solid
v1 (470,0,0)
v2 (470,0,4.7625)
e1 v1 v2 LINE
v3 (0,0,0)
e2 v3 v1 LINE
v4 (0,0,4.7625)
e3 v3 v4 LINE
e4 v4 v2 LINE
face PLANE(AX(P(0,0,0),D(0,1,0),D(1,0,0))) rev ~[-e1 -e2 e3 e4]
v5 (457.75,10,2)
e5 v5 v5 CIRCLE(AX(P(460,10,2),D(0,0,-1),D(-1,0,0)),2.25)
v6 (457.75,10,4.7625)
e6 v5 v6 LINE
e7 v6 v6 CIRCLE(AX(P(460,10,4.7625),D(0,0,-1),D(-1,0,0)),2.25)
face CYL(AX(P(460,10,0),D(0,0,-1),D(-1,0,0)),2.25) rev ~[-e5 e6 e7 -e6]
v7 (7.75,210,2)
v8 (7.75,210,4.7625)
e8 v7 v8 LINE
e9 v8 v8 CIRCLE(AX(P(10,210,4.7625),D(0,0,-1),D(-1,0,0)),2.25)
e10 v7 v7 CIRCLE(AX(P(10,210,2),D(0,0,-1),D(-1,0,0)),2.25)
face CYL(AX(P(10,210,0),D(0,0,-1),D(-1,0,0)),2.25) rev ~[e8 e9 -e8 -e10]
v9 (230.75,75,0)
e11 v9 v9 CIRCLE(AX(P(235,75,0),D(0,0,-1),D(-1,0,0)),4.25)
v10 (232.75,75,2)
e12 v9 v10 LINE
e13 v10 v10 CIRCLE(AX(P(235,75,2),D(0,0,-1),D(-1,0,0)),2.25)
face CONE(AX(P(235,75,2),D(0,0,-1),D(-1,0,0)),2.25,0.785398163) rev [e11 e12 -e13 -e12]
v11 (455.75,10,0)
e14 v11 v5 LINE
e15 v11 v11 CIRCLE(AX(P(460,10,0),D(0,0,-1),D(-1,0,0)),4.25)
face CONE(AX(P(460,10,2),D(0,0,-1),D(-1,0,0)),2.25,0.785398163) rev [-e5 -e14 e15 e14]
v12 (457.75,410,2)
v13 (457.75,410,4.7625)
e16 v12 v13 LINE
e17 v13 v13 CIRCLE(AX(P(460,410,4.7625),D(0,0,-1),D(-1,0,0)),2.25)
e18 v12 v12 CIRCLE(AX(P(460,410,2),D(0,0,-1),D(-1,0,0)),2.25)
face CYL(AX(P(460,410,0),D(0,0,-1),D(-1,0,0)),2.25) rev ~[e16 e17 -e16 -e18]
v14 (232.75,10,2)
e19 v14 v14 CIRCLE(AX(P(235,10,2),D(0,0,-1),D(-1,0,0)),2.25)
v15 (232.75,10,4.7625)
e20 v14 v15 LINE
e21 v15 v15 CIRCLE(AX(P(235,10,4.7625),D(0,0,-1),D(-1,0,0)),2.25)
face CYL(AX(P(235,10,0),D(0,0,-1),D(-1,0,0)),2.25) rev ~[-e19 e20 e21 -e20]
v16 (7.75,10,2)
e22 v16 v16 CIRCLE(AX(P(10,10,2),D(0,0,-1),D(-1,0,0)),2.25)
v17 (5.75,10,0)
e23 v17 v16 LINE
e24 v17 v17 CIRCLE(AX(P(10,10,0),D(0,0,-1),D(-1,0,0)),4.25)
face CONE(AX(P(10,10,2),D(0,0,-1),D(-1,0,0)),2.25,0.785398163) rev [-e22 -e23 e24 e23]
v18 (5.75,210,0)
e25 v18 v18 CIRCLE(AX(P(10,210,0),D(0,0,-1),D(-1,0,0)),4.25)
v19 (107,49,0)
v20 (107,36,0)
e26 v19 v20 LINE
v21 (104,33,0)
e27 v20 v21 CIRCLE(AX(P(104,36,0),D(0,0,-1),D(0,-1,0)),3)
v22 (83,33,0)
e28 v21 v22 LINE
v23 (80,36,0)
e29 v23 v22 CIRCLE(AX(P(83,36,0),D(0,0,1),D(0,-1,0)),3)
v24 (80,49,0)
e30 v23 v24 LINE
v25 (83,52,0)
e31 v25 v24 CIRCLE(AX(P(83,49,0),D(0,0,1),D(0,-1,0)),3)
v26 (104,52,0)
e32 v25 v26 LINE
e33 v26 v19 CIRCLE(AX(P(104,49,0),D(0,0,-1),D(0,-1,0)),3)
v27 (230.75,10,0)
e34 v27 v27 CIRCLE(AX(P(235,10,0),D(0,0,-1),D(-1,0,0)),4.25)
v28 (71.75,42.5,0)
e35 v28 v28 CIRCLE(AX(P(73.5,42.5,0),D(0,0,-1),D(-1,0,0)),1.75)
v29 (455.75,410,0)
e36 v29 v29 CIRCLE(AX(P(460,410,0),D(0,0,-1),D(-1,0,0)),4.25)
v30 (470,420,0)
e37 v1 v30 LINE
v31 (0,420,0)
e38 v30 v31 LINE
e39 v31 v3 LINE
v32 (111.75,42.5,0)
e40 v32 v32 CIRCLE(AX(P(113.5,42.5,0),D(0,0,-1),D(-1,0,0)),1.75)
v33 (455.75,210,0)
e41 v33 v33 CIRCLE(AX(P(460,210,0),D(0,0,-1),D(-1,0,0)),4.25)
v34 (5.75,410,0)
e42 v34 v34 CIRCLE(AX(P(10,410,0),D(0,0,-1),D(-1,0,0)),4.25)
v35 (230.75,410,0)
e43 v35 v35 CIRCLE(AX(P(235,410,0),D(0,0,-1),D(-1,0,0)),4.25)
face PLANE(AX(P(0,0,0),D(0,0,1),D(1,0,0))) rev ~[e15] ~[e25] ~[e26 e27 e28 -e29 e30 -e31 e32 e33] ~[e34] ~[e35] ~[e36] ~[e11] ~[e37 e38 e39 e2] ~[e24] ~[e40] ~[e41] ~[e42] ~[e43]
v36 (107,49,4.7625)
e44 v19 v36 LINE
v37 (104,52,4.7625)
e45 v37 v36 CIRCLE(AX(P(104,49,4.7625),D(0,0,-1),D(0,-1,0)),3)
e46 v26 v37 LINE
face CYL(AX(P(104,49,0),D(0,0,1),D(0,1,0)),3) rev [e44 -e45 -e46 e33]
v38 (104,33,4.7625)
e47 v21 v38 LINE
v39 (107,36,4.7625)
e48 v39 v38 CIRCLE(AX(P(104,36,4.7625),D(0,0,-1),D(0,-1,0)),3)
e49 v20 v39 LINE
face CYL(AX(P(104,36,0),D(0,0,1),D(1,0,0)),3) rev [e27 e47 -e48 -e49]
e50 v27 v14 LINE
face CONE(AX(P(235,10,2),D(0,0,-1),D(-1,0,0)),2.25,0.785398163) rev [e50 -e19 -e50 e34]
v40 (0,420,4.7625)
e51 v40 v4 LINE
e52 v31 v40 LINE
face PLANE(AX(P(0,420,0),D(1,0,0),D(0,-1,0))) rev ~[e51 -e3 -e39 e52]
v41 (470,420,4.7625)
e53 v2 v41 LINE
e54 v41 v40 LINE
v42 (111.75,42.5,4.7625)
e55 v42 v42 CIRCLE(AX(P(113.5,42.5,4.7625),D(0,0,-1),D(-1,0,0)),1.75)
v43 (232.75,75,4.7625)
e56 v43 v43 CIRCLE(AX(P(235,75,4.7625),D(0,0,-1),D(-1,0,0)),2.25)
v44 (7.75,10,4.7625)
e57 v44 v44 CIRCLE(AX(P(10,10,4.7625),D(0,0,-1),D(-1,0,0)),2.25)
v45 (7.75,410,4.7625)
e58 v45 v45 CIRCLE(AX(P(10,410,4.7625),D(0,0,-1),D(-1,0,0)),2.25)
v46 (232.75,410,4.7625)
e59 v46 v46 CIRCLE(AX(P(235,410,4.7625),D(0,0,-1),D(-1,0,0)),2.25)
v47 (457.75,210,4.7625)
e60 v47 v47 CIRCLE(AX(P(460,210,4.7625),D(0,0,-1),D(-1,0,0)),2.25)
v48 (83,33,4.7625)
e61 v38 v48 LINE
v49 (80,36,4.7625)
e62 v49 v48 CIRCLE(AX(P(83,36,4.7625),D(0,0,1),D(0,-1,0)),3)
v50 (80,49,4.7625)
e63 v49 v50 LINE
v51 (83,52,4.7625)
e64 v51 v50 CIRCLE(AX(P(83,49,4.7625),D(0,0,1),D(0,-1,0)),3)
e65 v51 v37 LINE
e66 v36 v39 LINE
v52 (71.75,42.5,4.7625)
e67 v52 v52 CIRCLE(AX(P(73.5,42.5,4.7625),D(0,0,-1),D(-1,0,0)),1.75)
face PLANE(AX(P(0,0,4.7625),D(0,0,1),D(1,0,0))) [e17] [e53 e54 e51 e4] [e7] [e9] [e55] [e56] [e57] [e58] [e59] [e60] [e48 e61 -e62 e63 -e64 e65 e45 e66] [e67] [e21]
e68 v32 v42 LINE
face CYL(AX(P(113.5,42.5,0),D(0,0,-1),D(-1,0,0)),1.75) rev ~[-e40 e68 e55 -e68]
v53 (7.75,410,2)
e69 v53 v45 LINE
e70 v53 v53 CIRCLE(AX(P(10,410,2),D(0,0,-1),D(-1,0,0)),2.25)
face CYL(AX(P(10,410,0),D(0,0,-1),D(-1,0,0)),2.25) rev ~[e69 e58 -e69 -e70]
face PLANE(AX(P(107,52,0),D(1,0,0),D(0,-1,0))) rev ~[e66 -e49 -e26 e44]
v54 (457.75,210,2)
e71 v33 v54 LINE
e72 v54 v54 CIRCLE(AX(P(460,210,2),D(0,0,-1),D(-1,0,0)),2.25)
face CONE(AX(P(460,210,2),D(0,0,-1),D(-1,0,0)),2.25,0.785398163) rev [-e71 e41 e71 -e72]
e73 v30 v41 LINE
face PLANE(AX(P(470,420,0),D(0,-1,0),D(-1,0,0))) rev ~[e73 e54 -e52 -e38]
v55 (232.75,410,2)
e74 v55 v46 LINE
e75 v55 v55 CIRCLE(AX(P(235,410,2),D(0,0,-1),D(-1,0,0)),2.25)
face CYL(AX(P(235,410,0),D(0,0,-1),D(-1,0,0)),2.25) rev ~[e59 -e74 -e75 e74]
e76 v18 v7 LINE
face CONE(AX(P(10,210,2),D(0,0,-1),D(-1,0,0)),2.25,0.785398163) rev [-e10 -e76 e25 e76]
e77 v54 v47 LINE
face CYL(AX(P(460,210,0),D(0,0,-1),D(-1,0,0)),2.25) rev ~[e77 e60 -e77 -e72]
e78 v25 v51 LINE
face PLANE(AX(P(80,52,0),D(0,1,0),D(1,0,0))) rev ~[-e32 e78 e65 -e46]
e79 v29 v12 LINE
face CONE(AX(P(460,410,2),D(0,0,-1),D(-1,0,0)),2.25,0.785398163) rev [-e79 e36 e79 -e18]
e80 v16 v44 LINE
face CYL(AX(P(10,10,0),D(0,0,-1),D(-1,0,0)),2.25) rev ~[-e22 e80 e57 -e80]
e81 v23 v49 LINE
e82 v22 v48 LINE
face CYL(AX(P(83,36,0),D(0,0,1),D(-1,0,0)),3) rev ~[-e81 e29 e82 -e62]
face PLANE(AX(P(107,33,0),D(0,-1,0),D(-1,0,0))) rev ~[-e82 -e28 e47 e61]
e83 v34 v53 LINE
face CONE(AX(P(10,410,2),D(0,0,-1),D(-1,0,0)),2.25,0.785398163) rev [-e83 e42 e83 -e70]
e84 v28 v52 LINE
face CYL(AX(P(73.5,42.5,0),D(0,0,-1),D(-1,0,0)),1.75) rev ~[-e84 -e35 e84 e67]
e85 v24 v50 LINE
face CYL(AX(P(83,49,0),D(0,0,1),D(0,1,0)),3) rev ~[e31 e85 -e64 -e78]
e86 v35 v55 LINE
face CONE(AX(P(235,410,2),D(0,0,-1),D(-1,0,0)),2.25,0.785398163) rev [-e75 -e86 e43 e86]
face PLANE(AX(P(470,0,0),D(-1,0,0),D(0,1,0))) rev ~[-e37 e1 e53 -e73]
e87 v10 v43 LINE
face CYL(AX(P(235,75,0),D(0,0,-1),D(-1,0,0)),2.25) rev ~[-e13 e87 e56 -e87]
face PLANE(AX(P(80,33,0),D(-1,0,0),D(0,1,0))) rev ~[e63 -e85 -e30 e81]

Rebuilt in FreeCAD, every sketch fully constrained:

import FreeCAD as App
import Part
import Sketcher

V = App.Vector


def edges_at(feature, points):
    """Names of the edges that pass closest to the given points."""
    edges = feature.Shape.Edges
    near = lambda p: min(range(len(edges)), key=lambda i: edges[i].distToShape(Part.Vertex(*p))[0])
    return sorted({f"Edge{near(p) + 1}" for p in points})

doc = App.newDocument("Part")
params = doc.addObject("Spreadsheet::Sheet", "Params")
for row, (alias, value) in enumerate([
    ("sketch1_width", "470 mm"),
    ("sketch1_height", "420 mm"),
    ("pad1_length", "4.7625 mm"),
    ("sketch2_width", "27 mm"),
    ("sketch2_height", "19 mm"),
    ("sketch3_diameter", "3.5 mm"),
    ("pocket2_length", "4.7625 mm"),
    ("sketch4_diameter", "4.5 mm"),
    ("pocket3_length", "4.7625 mm"),
    ("chamfer_size", "2 mm"),
    ("fillet_radius", "3 mm"),
], start=1):
    params.set(f"A{row}", alias)
    params.set(f"B{row}", "=" + value)
    params.setAlias(f"B{row}", alias)

body = doc.addObject("PartDesign::Body", "Body")

# Sketch on XY plane
sketch1 = body.newObject("Sketcher::SketchObject", "Sketch")
sketch1.AttachmentSupport = (doc.getObject("XY_Plane"), [""])
sketch1.MapMode = "FlatFace"
sketch1.addGeometry([
    Part.LineSegment(V(0, 420, 0), V(0, 0, 0)),
    Part.LineSegment(V(0, 0, 0), V(470, 0, 0)),
    Part.LineSegment(V(470, 0, 0), V(470, 420, 0)),
    Part.LineSegment(V(470, 420, 0), V(0, 420, 0)),
], False)
sketch1.addConstraint([
    Sketcher.Constraint("Coincident", 0, 2, 1, 1),
    Sketcher.Constraint("Coincident", 1, 2, 2, 1),
    Sketcher.Constraint("Coincident", 2, 2, 3, 1),
    Sketcher.Constraint("Coincident", 3, 2, 0, 1),
    Sketcher.Constraint("Vertical", 0),
    Sketcher.Constraint("Horizontal", 1),
    Sketcher.Constraint("Vertical", 2),
    Sketcher.Constraint("Horizontal", 3),
    Sketcher.Constraint("Coincident", 0, 2, -1, 1),
    Sketcher.Constraint("DistanceX", 1, 1, 1, 2, 470.0),
    Sketcher.Constraint("DistanceY", 0, 2, 0, 1, 420.0),
])
sketch1.setExpression("Constraints[9]", "Params.sketch1_width")
sketch1.setExpression("Constraints[10]", "Params.sketch1_height")
pad1 = body.newObject("PartDesign::Pad", "Pad")
pad1.Profile = sketch1
pad1.setExpression("Length", "Params.pad1_length")

# Sketch on XY plane
sketch2 = body.newObject("Sketcher::SketchObject", "Sketch001")
sketch2.AttachmentSupport = (doc.getObject("XY_Plane"), [""])
sketch2.MapMode = "FlatFace"
sketch2.addGeometry([
    Part.LineSegment(V(107, 52, 0), V(107, 33, 0)),
    Part.LineSegment(V(107, 33, 0), V(80, 33, 0)),
    Part.LineSegment(V(80, 33, 0), V(80, 52, 0)),
    Part.LineSegment(V(80, 52, 0), V(107, 52, 0)),
], False)
sketch2.addConstraint([
    Sketcher.Constraint("Coincident", 0, 2, 1, 1),
    Sketcher.Constraint("Coincident", 1, 2, 2, 1),
    Sketcher.Constraint("Coincident", 2, 2, 3, 1),
    Sketcher.Constraint("Coincident", 3, 2, 0, 1),
    Sketcher.Constraint("Vertical", 0),
    Sketcher.Constraint("Horizontal", 1),
    Sketcher.Constraint("Vertical", 2),
    Sketcher.Constraint("Horizontal", 3),
    Sketcher.Constraint("DistanceX", 1, 2, 1, 1, 27.0),
    Sketcher.Constraint("DistanceY", 0, 2, 0, 1, 19.0),
    Sketcher.Constraint("DistanceY", -1, 1, 0, 2, 33.0),
    Sketcher.Constraint("DistanceX", -1, 1, 1, 2, 80.0),
])
sketch2.setExpression("Constraints[8]", "Params.sketch2_width")
sketch2.setExpression("Constraints[9]", "Params.sketch2_height")
pocket1 = body.newObject("PartDesign::Pocket", "Pocket")
pocket1.Profile = sketch2
pocket1.Type = "UpToFirst"
pocket1.Reversed = True

# Sketch on XY plane
sketch3 = body.newObject("Sketcher::SketchObject", "Sketch002")
sketch3.AttachmentSupport = (doc.getObject("XY_Plane"), [""])
sketch3.MapMode = "FlatFace"
sketch3.addGeometry([
    Part.Circle(V(113.5, 42.5, 0), V(0, 0, 1), 1.8),
    Part.Circle(V(73.5, 42.5, 0), V(0, 0, 1), 1.8),
], False)
sketch3.addConstraint([
    Sketcher.Constraint("Equal", 0, 1),
    Sketcher.Constraint("Horizontal", 0, 3, 1, 3),
    Sketcher.Constraint("Diameter", 0, 3.5),
    Sketcher.Constraint("DistanceX", 1, 3, 0, 3, 40.0),
    Sketcher.Constraint("DistanceX", -1, 1, 0, 3, 113.5),
    Sketcher.Constraint("DistanceY", -1, 1, 0, 3, 42.5),
])
sketch3.setExpression("Constraints[2]", "Params.sketch3_diameter")
pocket2 = body.newObject("PartDesign::Pocket", "Pocket001")
pocket2.Profile = sketch3
pocket2.setExpression("Length", "Params.pocket2_length")
pocket2.Reversed = True

# Sketch on XY plane
sketch4 = body.newObject("Sketcher::SketchObject", "Sketch003")
sketch4.AttachmentSupport = (doc.getObject("XY_Plane"), [""])
sketch4.MapMode = "FlatFace"
sketch4.addGeometry([
    Part.Circle(V(460, 410, 0), V(0, 0, 1), 2.2),  # 0
    Part.Circle(V(10, 410, 0), V(0, 0, 1), 2.2),  # 1
    Part.Circle(V(10, 10, 0), V(0, 0, 1), 2.2),  # 2
    Part.Circle(V(460, 10, 0), V(0, 0, 1), 2.2),  # 3
    Part.Circle(V(235, 410, 0), V(0, 0, 1), 2.2),  # 4
    Part.Circle(V(235, 10, 0), V(0, 0, 1), 2.2),  # 5
    Part.Circle(V(10, 210, 0), V(0, 0, 1), 2.2),  # 6
    Part.Circle(V(460, 210, 0), V(0, 0, 1), 2.2),  # 7
    Part.Circle(V(235, 75, 0), V(0, 0, 1), 2.2),  # 8
], False)
sketch4.addConstraint([
    Sketcher.Constraint("Equal", 0, 1),
    Sketcher.Constraint("Equal", 1, 2),
    Sketcher.Constraint("Equal", 2, 3),
    Sketcher.Constraint("Equal", 3, 4),
    Sketcher.Constraint("Equal", 4, 5),
    Sketcher.Constraint("Equal", 5, 6),
    Sketcher.Constraint("Equal", 6, 7),
    Sketcher.Constraint("Equal", 7, 8),
    Sketcher.Constraint("Horizontal", 0, 3, 1, 3),
    Sketcher.Constraint("Horizontal", 2, 3, 3, 3),
    Sketcher.Constraint("Horizontal", 1, 3, 4, 3),
    Sketcher.Constraint("Horizontal", 3, 3, 5, 3),
    Sketcher.Constraint("Horizontal", 6, 3, 7, 3),
    Sketcher.Constraint("Vertical", 1, 3, 2, 3),
    Sketcher.Constraint("Vertical", 0, 3, 3, 3),
    Sketcher.Constraint("Vertical", 4, 3, 5, 3),
    Sketcher.Constraint("Vertical", 2, 3, 6, 3),
    Sketcher.Constraint("Vertical", 3, 3, 7, 3),
    Sketcher.Constraint("Vertical", 5, 3, 8, 3),
    Sketcher.Constraint("Diameter", 0, 4.5),
    Sketcher.Constraint("DistanceX", -1, 1, 1, 3, 10.0),
    Sketcher.Constraint("DistanceY", -1, 1, 2, 3, 10.0),
    Sketcher.Constraint("DistanceX", -1, 1, 4, 3, 235.0),
    Sketcher.Constraint("DistanceY", -1, 1, 6, 3, 210.0),
    Sketcher.Constraint("DistanceY", -1, 1, 8, 3, 75.0),
    Sketcher.Constraint("DistanceX", -1, 1, 0, 3, 460.0),
    Sketcher.Constraint("DistanceY", -1, 1, 0, 3, 410.0),
])
sketch4.setExpression("Constraints[19]", "Params.sketch4_diameter")
pocket3 = body.newObject("PartDesign::Pocket", "Pocket002")
pocket3.Profile = sketch4
pocket3.setExpression("Length", "Params.pocket3_length")
pocket3.Reversed = True
doc.recompute()

chamfer = body.newObject("PartDesign::Chamfer", "Chamfer")
chamfer.Base = (pocket3, edges_at(pocket3, [
    (462.25, 410, 0),
    (237.25, 410, 0),
    (12.25, 410, 0),
    (12.25, 210, 0),
    (237.25, 75, 0),
    (237.25, 10, 0),
    (12.25, 10, 0),
    (462.25, 10, 0),
    (462.25, 210, 0),
]))
chamfer.setExpression("Size", "Params.chamfer_size")
doc.recompute()

fillet = body.newObject("PartDesign::Fillet", "Fillet")
fillet.Base = (chamfer, edges_at(chamfer, [
    (80, 33, 2.381),
    (80, 52, 2.381),
    (107, 52, 2.381),
    (107, 33, 2.381),
]))
fillet.setExpression("Radius", "Params.fillet_radius")

doc.recompute()
